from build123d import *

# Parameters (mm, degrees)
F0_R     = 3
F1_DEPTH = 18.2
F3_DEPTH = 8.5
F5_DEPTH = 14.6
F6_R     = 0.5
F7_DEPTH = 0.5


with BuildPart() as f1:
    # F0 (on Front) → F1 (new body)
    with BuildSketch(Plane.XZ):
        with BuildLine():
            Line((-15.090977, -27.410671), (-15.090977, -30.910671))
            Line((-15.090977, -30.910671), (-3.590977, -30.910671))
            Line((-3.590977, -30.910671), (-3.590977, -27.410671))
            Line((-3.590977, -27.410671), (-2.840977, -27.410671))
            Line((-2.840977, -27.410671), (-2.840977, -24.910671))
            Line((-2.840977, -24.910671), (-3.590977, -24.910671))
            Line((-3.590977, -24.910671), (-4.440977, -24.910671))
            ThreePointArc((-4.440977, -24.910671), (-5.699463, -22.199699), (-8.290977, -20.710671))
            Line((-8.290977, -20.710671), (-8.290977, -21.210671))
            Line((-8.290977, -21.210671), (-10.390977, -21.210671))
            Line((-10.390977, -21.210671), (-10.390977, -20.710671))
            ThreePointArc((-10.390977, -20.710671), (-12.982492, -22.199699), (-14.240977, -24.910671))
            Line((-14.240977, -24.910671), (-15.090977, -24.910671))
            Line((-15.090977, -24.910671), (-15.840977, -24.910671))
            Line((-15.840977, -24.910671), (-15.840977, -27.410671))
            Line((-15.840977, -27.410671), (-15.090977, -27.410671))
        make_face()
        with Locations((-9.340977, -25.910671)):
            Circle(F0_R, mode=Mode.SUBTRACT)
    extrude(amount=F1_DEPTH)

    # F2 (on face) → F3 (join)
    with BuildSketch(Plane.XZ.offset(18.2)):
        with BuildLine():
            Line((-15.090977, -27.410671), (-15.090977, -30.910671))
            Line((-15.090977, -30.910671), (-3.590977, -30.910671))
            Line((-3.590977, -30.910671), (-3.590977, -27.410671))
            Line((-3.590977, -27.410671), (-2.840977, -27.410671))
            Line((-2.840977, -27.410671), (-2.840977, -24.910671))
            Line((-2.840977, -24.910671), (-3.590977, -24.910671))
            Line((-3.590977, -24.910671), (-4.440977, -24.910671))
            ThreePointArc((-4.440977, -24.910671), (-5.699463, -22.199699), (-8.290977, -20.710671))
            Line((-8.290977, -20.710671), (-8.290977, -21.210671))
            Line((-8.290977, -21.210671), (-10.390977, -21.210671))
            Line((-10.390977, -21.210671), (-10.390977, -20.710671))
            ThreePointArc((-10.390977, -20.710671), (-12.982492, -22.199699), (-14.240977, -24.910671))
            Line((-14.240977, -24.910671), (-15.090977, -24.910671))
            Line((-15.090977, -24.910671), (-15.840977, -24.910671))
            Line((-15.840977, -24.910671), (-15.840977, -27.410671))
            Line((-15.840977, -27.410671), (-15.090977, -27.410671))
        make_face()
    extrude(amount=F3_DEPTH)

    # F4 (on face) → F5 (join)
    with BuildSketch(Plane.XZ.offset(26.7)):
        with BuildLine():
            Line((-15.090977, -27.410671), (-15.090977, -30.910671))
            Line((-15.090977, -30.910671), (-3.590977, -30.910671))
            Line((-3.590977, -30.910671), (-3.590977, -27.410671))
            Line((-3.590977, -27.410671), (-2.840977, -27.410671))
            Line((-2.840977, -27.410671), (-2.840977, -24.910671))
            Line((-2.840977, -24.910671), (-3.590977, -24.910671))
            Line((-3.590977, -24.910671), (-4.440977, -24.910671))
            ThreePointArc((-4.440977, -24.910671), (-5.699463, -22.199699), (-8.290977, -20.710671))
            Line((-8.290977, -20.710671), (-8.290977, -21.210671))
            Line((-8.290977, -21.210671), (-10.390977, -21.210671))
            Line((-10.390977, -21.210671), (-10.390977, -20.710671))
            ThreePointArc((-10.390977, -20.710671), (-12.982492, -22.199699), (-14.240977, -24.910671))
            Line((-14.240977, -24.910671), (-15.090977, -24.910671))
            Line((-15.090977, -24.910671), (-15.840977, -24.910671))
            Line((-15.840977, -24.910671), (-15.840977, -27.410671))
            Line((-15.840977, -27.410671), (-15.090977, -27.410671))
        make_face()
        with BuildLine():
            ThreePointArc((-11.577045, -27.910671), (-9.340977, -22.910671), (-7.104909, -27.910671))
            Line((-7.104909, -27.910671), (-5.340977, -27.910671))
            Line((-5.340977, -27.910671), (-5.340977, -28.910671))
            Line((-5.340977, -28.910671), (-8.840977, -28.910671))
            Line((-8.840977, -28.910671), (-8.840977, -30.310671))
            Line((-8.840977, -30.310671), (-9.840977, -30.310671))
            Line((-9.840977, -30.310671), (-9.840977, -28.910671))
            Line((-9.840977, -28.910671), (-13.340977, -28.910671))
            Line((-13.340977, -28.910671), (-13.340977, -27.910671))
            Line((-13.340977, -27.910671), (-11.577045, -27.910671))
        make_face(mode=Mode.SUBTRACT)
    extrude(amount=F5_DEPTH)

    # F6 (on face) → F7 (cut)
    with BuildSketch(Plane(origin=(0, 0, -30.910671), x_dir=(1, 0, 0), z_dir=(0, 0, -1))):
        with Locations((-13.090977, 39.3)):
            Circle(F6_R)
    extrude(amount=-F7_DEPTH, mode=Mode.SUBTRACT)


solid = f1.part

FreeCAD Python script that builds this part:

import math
import FreeCAD as App
import Part
import Sketcher
from FreeCAD import Vector
Q = App.Units.Quantity

doc = App.newDocument("Part")
body = doc.addObject("PartDesign::Body", "Body")

sketch1 = body.newObject("Sketcher::SketchObject", "Sketch")
sketch1.AttachmentSupport = (doc.getObject("XZ_Plane"), [""])
sketch1.MapMode = "FlatFace"
sketch1.addGeometry(Part.LineSegment(Vector(-15.1, -27.4, 0), Vector(-15.1, -30.9, 0)), False)
sketch1.addGeometry(Part.LineSegment(Vector(-15.1, -30.9, 0), Vector(-3.6, -30.9, 0)), False)
sketch1.addGeometry(Part.LineSegment(Vector(-3.6, -30.9, 0), Vector(-3.6, -27.4, 0)), False)
sketch1.addGeometry(Part.LineSegment(Vector(-3.6, -27.4, 0), Vector(-2.8, -27.4, 0)), False)
sketch1.addGeometry(Part.LineSegment(Vector(-2.8, -27.4, 0), Vector(-2.8, -24.9, 0)), False)
sketch1.addGeometry(Part.LineSegment(Vector(-2.8, -24.9, 0), Vector(-4.4, -24.9, 0)), False)
sketch1.addGeometry(Part.ArcOfCircle(Part.Circle(Vector(-9.3, -25.5, 0), Vector(0, 0, 1), 4.9), math.radians(7), math.radians(78)), False)
sketch1.addGeometry(Part.LineSegment(Vector(-8.3, -20.7, 0), Vector(-8.3, -21.2, 0)), False)
sketch1.addGeometry(Part.LineSegment(Vector(-8.3, -21.2, 0), Vector(-10.4, -21.2, 0)), False)
sketch1.addGeometry(Part.LineSegment(Vector(-10.4, -21.2, 0), Vector(-10.4, -20.7, 0)), False)
sketch1.addGeometry(Part.ArcOfCircle(Part.Circle(Vector(-9.3, -25.5, 0), Vector(0, 0, 1), 4.9), math.radians(102), math.radians(173)), False)
sketch1.addGeometry(Part.LineSegment(Vector(-14.2, -24.9, 0), Vector(-15.8, -24.9, 0)), False)
sketch1.addGeometry(Part.LineSegment(Vector(-15.8, -24.9, 0), Vector(-15.8, -27.4, 0)), False)
sketch1.addGeometry(Part.LineSegment(Vector(-15.8, -27.4, 0), Vector(-15.1, -27.4, 0)), False)
sketch1.addGeometry(Part.Circle(Vector(-9.3, -25.9, 0), Vector(0, 0, 1), 3), False)
sketch1.addConstraint(Sketcher.Constraint("Coincident", 0, 2, 1, 1))
sketch1.addConstraint(Sketcher.Constraint("Coincident", 1, 2, 2, 1))
sketch1.addConstraint(Sketcher.Constraint("Coincident", 2, 2, 3, 1))
sketch1.addConstraint(Sketcher.Constraint("Coincident", 3, 2, 4, 1))
sketch1.addConstraint(Sketcher.Constraint("Coincident", 4, 2, 5, 1))
sketch1.addConstraint(Sketcher.Constraint("Coincident", 5, 2, 6, 1))
sketch1.addConstraint(Sketcher.Constraint("Coincident", 6, 2, 7, 1))
sketch1.addConstraint(Sketcher.Constraint("Coincident", 7, 2, 8, 1))
sketch1.addConstraint(Sketcher.Constraint("Coincident", 8, 2, 9, 1))
sketch1.addConstraint(Sketcher.Constraint("Coincident", 9, 2, 10, 1))
sketch1.addConstraint(Sketcher.Constraint("Coincident", 10, 2, 11, 1))
sketch1.addConstraint(Sketcher.Constraint("Coincident", 11, 2, 12, 1))
sketch1.addConstraint(Sketcher.Constraint("Coincident", 12, 2, 13, 1))
sketch1.addConstraint(Sketcher.Constraint("Coincident", 13, 2, 0, 1))
sketch1.addConstraint(Sketcher.Constraint("Vertical", 0))
sketch1.addConstraint(Sketcher.Constraint("Horizontal", 1))
sketch1.addConstraint(Sketcher.Constraint("Vertical", 2))
sketch1.addConstraint(Sketcher.Constraint("Horizontal", 3))
sketch1.addConstraint(Sketcher.Constraint("Vertical", 4))
sketch1.addConstraint(Sketcher.Constraint("Horizontal", 5))
sketch1.addConstraint(Sketcher.Constraint("Vertical", 7))
sketch1.addConstraint(Sketcher.Constraint("Horizontal", 8))
sketch1.addConstraint(Sketcher.Constraint("Vertical", 9))
sketch1.addConstraint(Sketcher.Constraint("Horizontal", 11))
sketch1.addConstraint(Sketcher.Constraint("Vertical", 12))
sketch1.addConstraint(Sketcher.Constraint("Horizontal", 13))
sketch1.addConstraint(Sketcher.Constraint("Coincident", 10, 3, 6, 3))
sketch1.addConstraint(Sketcher.Constraint("Horizontal", 6, 2, 9, 2))
sketch1.addConstraint(Sketcher.Constraint("Horizontal", 5, 2, 10, 2))
sketch1.addConstraint(Sketcher.Constraint("Horizontal", 3, 2, 12, 2))
sketch1.addConstraint(Sketcher.Constraint("Vertical", 6, 3, 14, 3))
sketch1.addConstraint(Sketcher.Constraint("Equal", 5, 11))
sketch1.addConstraint(Sketcher.Constraint("Equal", 3, 13))
sketch1.addConstraint(Sketcher.Constraint("Diameter", 14, Q("6 mm")))
sketch1.addConstraint(Sketcher.Constraint("DistanceX", 1, 1, 1, 2, Q("11.5 mm")))
sketch1.addConstraint(Sketcher.Constraint("DistanceX", 5, 2, 5, 1, Q("1.6 mm")))
sketch1.addConstraint(Sketcher.Constraint("DistanceX", 8, 2, 8, 1, Q("2.1 mm")))
sketch1.addConstraint(Sketcher.Constraint("DistanceY", 0, 2, 0, 1, Q("3.5 mm")))
sketch1.addConstraint(Sketcher.Constraint("DistanceY", 4, 1, 4, 2, Q("2.5 mm")))
sketch1.addConstraint(Sketcher.Constraint("DistanceY", 7, 2, 7, 1, Q("0.5 mm")))
sketch1.addConstraint(Sketcher.Constraint("DistanceY", 0, 2, 14, 3, Q("5 mm")))
sketch1.addConstraint(Sketcher.Constraint("DistanceX", 3, 1, 3, 2, Q("0.75 mm")))
sketch1.addConstraint(Sketcher.Constraint("DistanceX", 14, 3, 3, 2, Q("6.5 mm")))
sketch1.addConstraint(Sketcher.Constraint("DistanceY", 14, 3, 6, 2, Q("5.2 mm")))
sketch1.addConstraint(Sketcher.Constraint("DistanceX", 10, 3, -1, 1, Q("9.340982 mm")))
sketch1.addConstraint(Sketcher.Constraint("DistanceY", 10, 3, -1, 1, Q("25.53775 mm")))
pad1 = body.newObject("PartDesign::Pad", "Pad")
pad1.Profile = sketch1
pad1.Length = 18.2

sketch2 = body.newObject("Sketcher::SketchObject", "Sketch001")
sketch2.AttachmentSupport = (doc.getObject("XZ_Plane"), [""])
sketch2.MapMode = "FlatFace"
sketch2.AttachmentOffset = App.Placement(Vector(0, 0, 18.2), App.Rotation())
sketch2.addGeometry(Part.LineSegment(Vector(-15.1, -27.4, 0), Vector(-15.1, -30.9, 0)), False)
sketch2.addGeometry(Part.LineSegment(Vector(-15.1, -30.9, 0), Vector(-3.6, -30.9, 0)), False)
sketch2.addGeometry(Part.LineSegment(Vector(-3.6, -30.9, 0), Vector(-3.6, -27.4, 0)), False)
sketch2.addGeometry(Part.LineSegment(Vector(-3.6, -27.4, 0), Vector(-2.8, -27.4, 0)), False)
sketch2.addGeometry(Part.LineSegment(Vector(-2.8, -27.4, 0), Vector(-2.8, -24.9, 0)), False)
sketch2.addGeometry(Part.LineSegment(Vector(-2.8, -24.9, 0), Vector(-4.4, -24.9, 0)), False)
sketch2.addGeometry(Part.ArcOfCircle(Part.Circle(Vector(-9.3, -25.5, 0), Vector(0, 0, 1), 4.9), math.radians(7), math.radians(78)), False)
sketch2.addGeometry(Part.LineSegment(Vector(-8.3, -20.7, 0), Vector(-8.3, -21.2, 0)), False)
sketch2.addGeometry(Part.LineSegment(Vector(-8.3, -21.2, 0), Vector(-10.4, -21.2, 0)), False)
sketch2.addGeometry(Part.LineSegment(Vector(-10.4, -21.2, 0), Vector(-10.4, -20.7, 0)), False)
sketch2.addGeometry(Part.ArcOfCircle(Part.Circle(Vector(-9.3, -25.5, 0), Vector(0, 0, 1), 4.9), math.radians(102), math.radians(173)), False)
sketch2.addGeometry(Part.LineSegment(Vector(-14.2, -24.9, 0), Vector(-15.8, -24.9, 0)), False)
sketch2.addGeometry(Part.LineSegment(Vector(-15.8, -24.9, 0), Vector(-15.8, -27.4, 0)), False)
sketch2.addGeometry(Part.LineSegment(Vector(-15.8, -27.4, 0), Vector(-15.1, -27.4, 0)), False)
sketch2.addConstraint(Sketcher.Constraint("Coincident", 0, 2, 1, 1))
sketch2.addConstraint(Sketcher.Constraint("Coincident", 1, 2, 2, 1))
sketch2.addConstraint(Sketcher.Constraint("Coincident", 2, 2, 3, 1))
sketch2.addConstraint(Sketcher.Constraint("Coincident", 3, 2, 4, 1))
sketch2.addConstraint(Sketcher.Constraint("Coincident", 4, 2, 5, 1))
sketch2.addConstraint(Sketcher.Constraint("Coincident", 5, 2, 6, 1))
sketch2.addConstraint(Sketcher.Constraint("Coincident", 6, 2, 7, 1))
sketch2.addConstraint(Sketcher.Constraint("Coincident", 7, 2, 8, 1))
sketch2.addConstraint(Sketcher.Constraint("Coincident", 8, 2, 9, 1))
sketch2.addConstraint(Sketcher.Constraint("Coincident", 9, 2, 10, 1))
sketch2.addConstraint(Sketcher.Constraint("Coincident", 10, 2, 11, 1))
sketch2.addConstraint(Sketcher.Constraint("Coincident", 11, 2, 12, 1))
sketch2.addConstraint(Sketcher.Constraint("Coincident", 12, 2, 13, 1))
sketch2.addConstraint(Sketcher.Constraint("Coincident", 13, 2, 0, 1))
sketch2.addConstraint(Sketcher.Constraint("Vertical", 0))
sketch2.addConstraint(Sketcher.Constraint("Horizontal", 1))
sketch2.addConstraint(Sketcher.Constraint("Vertical", 2))
sketch2.addConstraint(Sketcher.Constraint("Horizontal", 3))
sketch2.addConstraint(Sketcher.Constraint("Vertical", 4))
sketch2.addConstraint(Sketcher.Constraint("Horizontal", 5))
sketch2.addConstraint(Sketcher.Constraint("Vertical", 7))
sketch2.addConstraint(Sketcher.Constraint("Horizontal", 8))
sketch2.addConstraint(Sketcher.Constraint("Vertical", 9))
sketch2.addConstraint(Sketcher.Constraint("Horizontal", 11))
sketch2.addConstraint(Sketcher.Constraint("Vertical", 12))
sketch2.addConstraint(Sketcher.Constraint("Horizontal", 13))
sketch2.addConstraint(Sketcher.Constraint("Coincident", 10, 3, 6, 3))
sketch2.addConstraint(Sketcher.Constraint("Horizontal", 6, 2, 9, 2))
sketch2.addConstraint(Sketcher.Constraint("Horizontal", 5, 2, 10, 2))
sketch2.addConstraint(Sketcher.Constraint("Horizontal", 3, 2, 12, 2))
sketch2.addConstraint(Sketcher.Constraint("Equal", 5, 11))
sketch2.addConstraint(Sketcher.Constraint("Equal", 3, 13))
sketch2.addConstraint(Sketcher.Constraint("DistanceX", 1, 1, 1, 2, Q("11.5 mm")))
sketch2.addConstraint(Sketcher.Constraint("DistanceX", 5, 2, 5, 1, Q("1.6 mm")))
sketch2.addConstraint(Sketcher.Constraint("DistanceX", 8, 2, 8, 1, Q("2.1 mm")))
sketch2.addConstraint(Sketcher.Constraint("DistanceY", 0, 2, 0, 1, Q("3.5 mm")))
sketch2.addConstraint(Sketcher.Constraint("DistanceY", 4, 1, 4, 2, Q("2.5 mm")))
sketch2.addConstraint(Sketcher.Constraint("DistanceY", 7, 2, 7, 1, Q("0.5 mm")))
sketch2.addConstraint(Sketcher.Constraint("DistanceX", 3, 1, 3, 2, Q("0.75 mm")))
sketch2.addConstraint(Sketcher.Constraint("DistanceX", 6, 3, 3, 2, Q("6.499998 mm")))
sketch2.addConstraint(Sketcher.Constraint("DistanceY", 5, 2, 6, 2, Q("4.2 mm")))
sketch2.addConstraint(Sketcher.Constraint("DistanceX", 10, 3, -1, 1, Q("9.340982 mm")))
sketch2.addConstraint(Sketcher.Constraint("DistanceY", 10, 3, -1, 1, Q("25.53775 mm")))
pad2 = body.newObject("PartDesign::Pad", "Pad001")
pad2.Profile = sketch2
pad2.Length = 8.5

sketch3 = body.newObject("Sketcher::SketchObject", "Sketch002")
sketch3.AttachmentSupport = (doc.getObject("XZ_Plane"), [""])
sketch3.MapMode = "FlatFace"
sketch3.AttachmentOffset = App.Placement(Vector(0, 0, 26.7), App.Rotation())
sketch3.addGeometry(Part.LineSegment(Vector(-15.1, -27.4, 0), Vector(-15.1, -30.9, 0)), False)
sketch3.addGeometry(Part.LineSegment(Vector(-15.1, -30.9, 0), Vector(-3.6, -30.9, 0)), False)
sketch3.addGeometry(Part.LineSegment(Vector(-3.6, -30.9, 0), Vector(-3.6, -27.4, 0)), False)
sketch3.addGeometry(Part.LineSegment(Vector(-3.6, -27.4, 0), Vector(-2.8, -27.4, 0)), False)
sketch3.addGeometry(Part.LineSegment(Vector(-2.8, -27.4, 0), Vector(-2.8, -24.9, 0)), False)
sketch3.addGeometry(Part.LineSegment(Vector(-2.8, -24.9, 0), Vector(-4.4, -24.9, 0)), False)
sketch3.addGeometry(Part.ArcOfCircle(Part.Circle(Vector(-9.3, -25.5, 0), Vector(0, 0, 1), 4.9), math.radians(7), math.radians(78)), False)
sketch3.addGeometry(Part.LineSegment(Vector(-8.3, -20.7, 0), Vector(-8.3, -21.2, 0)), False)
sketch3.addGeometry(Part.LineSegment(Vector(-8.3, -21.2, 0), Vector(-10.4, -21.2, 0)), False)
sketch3.addGeometry(Part.LineSegment(Vector(-10.4, -21.2, 0), Vector(-10.4, -20.7, 0)), False)
sketch3.addGeometry(Part.ArcOfCircle(Part.Circle(Vector(-9.3, -25.5, 0), Vector(0, 0, 1), 4.9), math.radians(102), math.radians(173)), False)
sketch3.addGeometry(Part.LineSegment(Vector(-14.2, -24.9, 0), Vector(-15.8, -24.9, 0)), False)
sketch3.addGeometry(Part.LineSegment(Vector(-15.8, -24.9, 0), Vector(-15.8, -27.4, 0)), False)
sketch3.addGeometry(Part.LineSegment(Vector(-15.8, -27.4, 0), Vector(-15.1, -27.4, 0)), False)
sketch3.addGeometry(Part.LineSegment(Vector(-13.3, -27.9, 0), Vector(-11.6, -27.9, 0)), False)
sketch3.addGeometry(Part.ArcOfCircle(Part.Circle(Vector(-9.3, -25.9, 0), Vector(0, 0, 1), 3), math.radians(-42), math.radians(222)), False)
sketch3.addGeometry(Part.LineSegment(Vector(-7.1, -27.9, 0), Vector(-5.3, -27.9, 0)), False)
sketch3.addGeometry(Part.LineSegment(Vector(-5.3, -27.9, 0), Vector(-5.3, -28.9, 0)), False)
sketch3.addGeometry(Part.LineSegment(Vector(-5.3, -28.9, 0), Vector(-8.8, -28.9, 0)), False)
sketch3.addGeometry(Part.LineSegment(Vector(-8.8, -28.9, 0), Vector(-8.8, -30.3, 0)), False)
sketch3.addGeometry(Part.LineSegment(Vector(-8.8, -30.3, 0), Vector(-9.8, -30.3, 0)), False)
sketch3.addGeometry(Part.LineSegment(Vector(-9.8, -30.3, 0), Vector(-9.8, -28.9, 0)), False)
sketch3.addGeometry(Part.LineSegment(Vector(-9.8, -28.9, 0), Vector(-13.3, -28.9, 0)), False)
sketch3.addGeometry(Part.LineSegment(Vector(-13.3, -28.9, 0), Vector(-13.3, -27.9, 0)), False)
sketch3.addConstraint(Sketcher.Constraint("Coincident", 0, 2, 1, 1))
sketch3.addConstraint(Sketcher.Constraint("Coincident", 1, 2, 2, 1))
sketch3.addConstraint(Sketcher.Constraint("Coincident", 2, 2, 3, 1))
sketch3.addConstraint(Sketcher.Constraint("Coincident", 3, 2, 4, 1))
sketch3.addConstraint(Sketcher.Constraint("Coincident", 4, 2, 5, 1))
sketch3.addConstraint(Sketcher.Constraint("Coincident", 5, 2, 6, 1))
sketch3.addConstraint(Sketcher.Constraint("Coincident", 6, 2, 7, 1))
sketch3.addConstraint(Sketcher.Constraint("Coincident", 7, 2, 8, 1))
sketch3.addConstraint(Sketcher.Constraint("Coincident", 8, 2, 9, 1))
sketch3.addConstraint(Sketcher.Constraint("Coincident", 9, 2, 10, 1))
sketch3.addConstraint(Sketcher.Constraint("Coincident", 10, 2, 11, 1))
sketch3.addConstraint(Sketcher.Constraint("Coincident", 11, 2, 12, 1))
sketch3.addConstraint(Sketcher.Constraint("Coincident", 12, 2, 13, 1))
sketch3.addConstraint(Sketcher.Constraint("Coincident", 13, 2, 0, 1))
sketch3.addConstraint(Sketcher.Constraint("Coincident", 14, 2, 15, 2))
sketch3.addConstraint(Sketcher.Constraint("Coincident", 15, 1, 16, 1))
sketch3.addConstraint(Sketcher.Constraint("Coincident", 16, 2, 17, 1))
sketch3.addConstraint(Sketcher.Constraint("Coincident", 17, 2, 18, 1))
sketch3.addConstraint(Sketcher.Constraint("Coincident", 18, 2, 19, 1))
sketch3.addConstraint(Sketcher.Constraint("Coincident", 19, 2, 20, 1))
sketch3.addConstraint(Sketcher.Constraint("Coincident", 20, 2, 21, 1))
sketch3.addConstraint(Sketcher.Constraint("Coincident", 21, 2, 22, 1))
sketch3.addConstraint(Sketcher.Constraint("Coincident", 22, 2, 23, 1))
sketch3.addConstraint(Sketcher.Constraint("Coincident", 23, 2, 14, 1))
sketch3.addConstraint(Sketcher.Constraint("Vertical", 0))
sketch3.addConstraint(Sketcher.Constraint("Horizontal", 1))
sketch3.addConstraint(Sketcher.Constraint("Vertical", 2))
sketch3.addConstraint(Sketcher.Constraint("Horizontal", 3))
sketch3.addConstraint(Sketcher.Constraint("Vertical", 4))
sketch3.addConstraint(Sketcher.Constraint("Horizontal", 5))
sketch3.addConstraint(Sketcher.Constraint("Vertical", 7))
sketch3.addConstraint(Sketcher.Constraint("Horizontal", 8))
sketch3.addConstraint(Sketcher.Constraint("Vertical", 9))
sketch3.addConstraint(Sketcher.Constraint("Horizontal", 11))
sketch3.addConstraint(Sketcher.Constraint("Vertical", 12))
sketch3.addConstraint(Sketcher.Constraint("Horizontal", 13))
sketch3.addConstraint(Sketcher.Constraint("Horizontal", 14))
sketch3.addConstraint(Sketcher.Constraint("Horizontal", 16))
sketch3.addConstraint(Sketcher.Constraint("Vertical", 17))
sketch3.addConstraint(Sketcher.Constraint("Horizontal", 18))
sketch3.addConstraint(Sketcher.Constraint("Vertical", 19))
sketch3.addConstraint(Sketcher.Constraint("Horizontal", 20))
sketch3.addConstraint(Sketcher.Constraint("Vertical", 21))
sketch3.addConstraint(Sketcher.Constraint("Horizontal", 22))
sketch3.addConstraint(Sketcher.Constraint("Vertical", 23))
sketch3.addConstraint(Sketcher.Constraint("Coincident", 10, 3, 6, 3))
sketch3.addConstraint(Sketcher.Constraint("Horizontal", 6, 2, 9, 2))
sketch3.addConstraint(Sketcher.Constraint("Horizontal", 5, 2, 10, 2))
sketch3.addConstraint(Sketcher.Constraint("Horizontal", 3, 2, 12, 2))
sketch3.addConstraint(Sketcher.Constraint("Horizontal", 14, 2, 15, 1))
sketch3.addConstraint(Sketcher.Constraint("Horizontal", 18, 2, 21, 2))
sketch3.addConstraint(Sketcher.Constraint("Vertical", 6, 3, 15, 3))
sketch3.addConstraint(Sketcher.Constraint("Equal", 5, 11))
sketch3.addConstraint(Sketcher.Constraint("Equal", 3, 13))
sketch3.addConstraint(Sketcher.Constraint("Equal", 14, 16))
sketch3.addConstraint(Sketcher.Constraint("Equal", 18, 22))
sketch3.addConstraint(Sketcher.Constraint("Equal", 22, 0))
sketch3.addConstraint(Sketcher.Constraint("Equal", 20, 17))
sketch3.addConstraint(Sketcher.Constraint("Radius", 15, Q("3 mm")))
sketch3.addConstraint(Sketcher.Constraint("DistanceX", 20, 2, 20, 1, Q("1 mm")))
sketch3.addConstraint(Sketcher.Constraint("DistanceX", 1, 1, 1, 2, Q("11.5 mm")))
sketch3.addConstraint(Sketcher.Constraint("DistanceX", 5, 2, 5, 1, Q("1.6 mm")))
sketch3.addConstraint(Sketcher.Constraint("DistanceX", 8, 2, 8, 1, Q("2.1 mm")))
sketch3.addConstraint(Sketcher.Constraint("DistanceX", 18, 2, 18, 1, Q("3.5 mm")))
sketch3.addConstraint(Sketcher.Constraint("DistanceY", 4, 1, 4, 2, Q("2.5 mm")))
sketch3.addConstraint(Sketcher.Constraint("DistanceY", 7, 2, 7, 1, Q("0.5 mm")))
sketch3.addConstraint(Sketcher.Constraint("DistanceY", 19, 2, 19, 1, Q("1.4 mm")))
sketch3.addConstraint(Sketcher.Constraint("DistanceY", 0, 2, 15, 3, Q("5 mm")))
sketch3.addConstraint(Sketcher.Constraint("DistanceY", 14, 2, 15, 3, Q("2 mm")))
sketch3.addConstraint(Sketcher.Constraint("DistanceX", 3, 1, 3, 2, Q("0.75 mm")))
sketch3.addConstraint(Sketcher.Constraint("DistanceX", 15, 3, 3, 2, Q("6.5 mm")))
sketch3.addConstraint(Sketcher.Constraint("DistanceY", 15, 3, 6, 2, Q("5.2 mm")))
sketch3.addConstraint(Sketcher.Constraint("DistanceX", 10, 3, -1, 1, Q("9.340982 mm")))
sketch3.addConstraint(Sketcher.Constraint("DistanceY", 10, 3, -1, 1, Q("25.53775 mm")))
pad3 = body.newObject("PartDesign::Pad", "Pad002")
pad3.Profile = sketch3
pad3.Length = 14.6

sketch4 = body.newObject("Sketcher::SketchObject", "Sketch003")
sketch4.AttachmentSupport = (doc.getObject("XY_Plane"), [""])
sketch4.MapMode = "FlatFace"
sketch4.AttachmentOffset = App.Placement(Vector(0, 0, -30.910671), App.Rotation())
sketch4.addGeometry(Part.Circle(Vector(-13.1, -39.3, 0), Vector(0, 0, 1), 0.5), False)
sketch4.addConstraint(Sketcher.Constraint("Diameter", 0, Q("1 mm")))
sketch4.addConstraint(Sketcher.Constraint("DistanceY", 0, 3, -1, 1, Q("39.3 mm")))
sketch4.addConstraint(Sketcher.Constraint("DistanceX", 0, 3, -1, 1, Q("13.090977 mm")))
pocket1 = body.newObject("PartDesign::Pocket", "Pocket")
pocket1.Profile = sketch4
pocket1.Length = 0.5
pocket1.Reversed = True

doc.recompute()
